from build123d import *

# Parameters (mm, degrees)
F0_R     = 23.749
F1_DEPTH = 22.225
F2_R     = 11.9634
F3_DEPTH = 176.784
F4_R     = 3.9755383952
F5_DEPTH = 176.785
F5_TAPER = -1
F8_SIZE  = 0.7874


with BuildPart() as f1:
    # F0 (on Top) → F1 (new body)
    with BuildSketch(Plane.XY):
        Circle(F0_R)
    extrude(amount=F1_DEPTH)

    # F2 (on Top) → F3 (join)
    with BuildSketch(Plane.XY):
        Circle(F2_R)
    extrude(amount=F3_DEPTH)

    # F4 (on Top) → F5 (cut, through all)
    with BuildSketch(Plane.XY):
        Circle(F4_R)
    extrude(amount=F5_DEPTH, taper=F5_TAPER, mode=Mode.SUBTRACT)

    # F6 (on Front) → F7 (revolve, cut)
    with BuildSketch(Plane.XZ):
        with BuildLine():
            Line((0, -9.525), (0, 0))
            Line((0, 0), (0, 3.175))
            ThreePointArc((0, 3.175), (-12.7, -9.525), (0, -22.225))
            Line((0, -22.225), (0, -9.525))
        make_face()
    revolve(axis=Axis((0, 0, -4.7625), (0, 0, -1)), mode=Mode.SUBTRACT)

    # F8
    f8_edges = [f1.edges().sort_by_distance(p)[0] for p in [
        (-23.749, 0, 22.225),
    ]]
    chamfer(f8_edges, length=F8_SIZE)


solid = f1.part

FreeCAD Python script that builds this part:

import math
import FreeCAD as App
import Part
import Sketcher
from FreeCAD import Vector
Q = App.Units.Quantity


def edges_at(feature, points):
    """Names of the edges that pass closest to the given points."""
    edges = feature.Shape.Edges
    near = lambda p: min(range(len(edges)), key=lambda i: edges[i].distToShape(Part.Vertex(*p))[0])
    return sorted({f"Edge{near(p) + 1}" for p in points})

doc = App.newDocument("Part")
body = doc.addObject("PartDesign::Body", "Body")

sketch1 = body.newObject("Sketcher::SketchObject", "Sketch")
sketch1.AttachmentSupport = (doc.getObject("XY_Plane"), [""])
sketch1.MapMode = "FlatFace"
sketch1.addGeometry(Part.Circle(Vector(0, 0, 0), Vector(0, 0, 1), 24), False)
sketch1.addConstraint([
    Sketcher.Constraint("Coincident", 0, 3, -1, 1),
    Sketcher.Constraint("Diameter", 0, Q("1.87 in")),
])
pad1 = body.newObject("PartDesign::Pad", "Pad")
pad1.Profile = sketch1
pad1.Length = Q("0.875 in")

sketch2 = body.newObject("Sketcher::SketchObject", "Sketch001")
sketch2.AttachmentSupport = (doc.getObject("XY_Plane"), [""])
sketch2.MapMode = "FlatFace"
sketch2.addGeometry(Part.Circle(Vector(0, 0, 0), Vector(0, 0, 1), 12), False)
sketch2.addConstraint([
    Sketcher.Constraint("Coincident", 0, 3, -1, 1),
    Sketcher.Constraint("Diameter", 0, Q("0.942 in")),
])
pad2 = body.newObject("PartDesign::Pad", "Pad001")
pad2.Profile = sketch2
pad2.Length = Q("6.96 in")

sketch3 = body.newObject("Sketcher::SketchObject", "Sketch002")
sketch3.AttachmentSupport = (doc.getObject("XY_Plane"), [""])
sketch3.MapMode = "FlatFace"
sketch3.addGeometry(Part.Circle(Vector(0, 0, 0), Vector(0, 0, 1), 4), False)
sketch3.addConstraint([
    Sketcher.Constraint("Coincident", 0, 3, -1, 1),
    Sketcher.Constraint("Diameter", 0, Q("7.951077 mm")),
])
pocket1 = body.newObject("PartDesign::Pocket", "Pocket")
pocket1.Profile = sketch3
pocket1.Length = 176.785
pocket1.Reversed = True
pocket1.TaperAngle = 1

sketch4 = body.newObject("Sketcher::SketchObject", "Sketch003")
sketch4.AttachmentSupport = (doc.getObject("XZ_Plane"), [""])
sketch4.MapMode = "FlatFace"
sketch4.addGeometry([
    Part.ArcOfCircle(Part.Circle(Vector(0, -10, 0), Vector(0, 0, 1), 13), math.radians(90), math.radians(270)),
    Part.LineSegment(Vector(0, -22, 0), Vector(0, 3, 0)),
], False)
sketch4.addConstraint([
    Sketcher.Constraint("Coincident", 0, 1, 1, 2),
    Sketcher.Constraint("Coincident", 1, 1, 0, 2),
    Sketcher.Constraint("Vertical", 1),
    Sketcher.Constraint("PointOnObject", 0, 3, -2),
    Sketcher.Constraint("PointOnObject", 0, 1, -2),
    Sketcher.Constraint("Radius", 0, Q("0.5 in")),
    Sketcher.Constraint("DistanceY", 0, 3, -1, 1, Q("0.375 in")),
])
groove = body.newObject("PartDesign::Groove", "Groove")
groove.Profile = sketch4
groove.ReferenceAxis = (sketch4, ["V_Axis"])
groove.Angle = 360
doc.recompute()

chamfer = body.newObject("PartDesign::Chamfer", "Chamfer")
chamfer.Base = (groove, edges_at(groove, [(-23.749, 0, 22.225)]))
chamfer.Size = Q("0.031 in")

doc.recompute()
